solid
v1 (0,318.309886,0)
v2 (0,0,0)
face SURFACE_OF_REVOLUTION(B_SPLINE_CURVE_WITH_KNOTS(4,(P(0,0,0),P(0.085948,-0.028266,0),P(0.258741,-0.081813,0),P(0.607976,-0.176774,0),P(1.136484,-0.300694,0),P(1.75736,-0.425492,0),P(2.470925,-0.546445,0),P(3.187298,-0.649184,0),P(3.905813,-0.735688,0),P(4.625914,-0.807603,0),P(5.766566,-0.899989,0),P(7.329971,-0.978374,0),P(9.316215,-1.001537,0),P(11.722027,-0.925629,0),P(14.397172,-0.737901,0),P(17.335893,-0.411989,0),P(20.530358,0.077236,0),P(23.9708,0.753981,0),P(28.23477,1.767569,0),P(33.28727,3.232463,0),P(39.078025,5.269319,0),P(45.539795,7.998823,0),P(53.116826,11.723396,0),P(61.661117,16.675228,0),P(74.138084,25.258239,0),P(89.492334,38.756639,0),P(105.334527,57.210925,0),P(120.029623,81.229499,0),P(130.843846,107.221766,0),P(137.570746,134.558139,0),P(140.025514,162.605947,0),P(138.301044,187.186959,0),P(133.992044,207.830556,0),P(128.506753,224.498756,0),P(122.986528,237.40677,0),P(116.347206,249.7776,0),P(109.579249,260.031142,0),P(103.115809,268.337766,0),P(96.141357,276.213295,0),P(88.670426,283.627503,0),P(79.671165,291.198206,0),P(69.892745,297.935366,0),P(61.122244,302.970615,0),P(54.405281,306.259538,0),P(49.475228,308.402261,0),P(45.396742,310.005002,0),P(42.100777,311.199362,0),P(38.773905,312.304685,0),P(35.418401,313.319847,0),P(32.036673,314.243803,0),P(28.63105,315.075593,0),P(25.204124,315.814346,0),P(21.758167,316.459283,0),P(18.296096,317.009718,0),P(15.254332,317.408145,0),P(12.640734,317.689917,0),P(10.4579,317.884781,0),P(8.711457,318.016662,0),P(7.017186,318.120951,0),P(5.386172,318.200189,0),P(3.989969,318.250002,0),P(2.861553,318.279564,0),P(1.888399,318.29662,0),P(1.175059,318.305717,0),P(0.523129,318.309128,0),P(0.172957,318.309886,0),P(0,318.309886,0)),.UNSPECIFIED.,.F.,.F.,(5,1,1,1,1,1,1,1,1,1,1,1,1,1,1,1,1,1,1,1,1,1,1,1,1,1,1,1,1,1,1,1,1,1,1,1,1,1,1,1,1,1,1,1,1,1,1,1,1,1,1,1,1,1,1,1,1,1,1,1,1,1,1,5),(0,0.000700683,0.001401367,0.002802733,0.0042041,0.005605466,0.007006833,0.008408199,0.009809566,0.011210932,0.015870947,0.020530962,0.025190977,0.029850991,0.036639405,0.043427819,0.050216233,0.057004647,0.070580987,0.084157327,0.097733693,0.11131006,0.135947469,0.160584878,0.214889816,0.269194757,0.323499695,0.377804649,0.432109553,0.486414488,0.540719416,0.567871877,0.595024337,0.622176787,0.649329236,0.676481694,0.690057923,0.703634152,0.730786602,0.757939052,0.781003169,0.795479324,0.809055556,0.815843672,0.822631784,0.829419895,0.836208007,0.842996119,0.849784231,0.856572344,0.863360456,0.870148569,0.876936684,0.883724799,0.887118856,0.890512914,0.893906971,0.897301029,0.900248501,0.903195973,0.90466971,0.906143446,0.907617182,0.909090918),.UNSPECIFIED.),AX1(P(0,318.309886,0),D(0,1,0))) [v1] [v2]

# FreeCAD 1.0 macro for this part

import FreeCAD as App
import Part
import Sketcher
from FreeCAD import Vector

doc = App.newDocument("Part")
body = doc.addObject("PartDesign::Body", "Body")

# Sketch on XY plane
sketch1 = body.newObject("Sketcher::SketchObject", "Sketch")
sketch1.AttachmentSupport = (doc.getObject("XY_Plane"), [""])
sketch1.MapMode = "FlatFace"
sketch1.addGeometry([
    Part.LineSegment(Vector(0, 318.309886, 0), Vector(0, 0, 0)),
    Part.BSplineCurve([Vector(0, 0, 0), Vector(0.085948, -0.028266, 0), Vector(0.258741, -0.081813, 0), Vector(0.607976, -0.176774, 0), Vector(1.136484, -0.300694, 0), Vector(1.75736, -0.425492, 0), Vector(2.470925, -0.546445, 0), Vector(3.187298, -0.649184, 0), Vector(3.905813, -0.735688, 0), Vector(4.625914, -0.807603, 0), Vector(5.766566, -0.899989, 0), Vector(7.329971, -0.978374, 0), Vector(9.316215, -1.001537, 0), Vector(11.722027, -0.925629, 0), Vector(14.397172, -0.737901, 0), Vector(17.335893, -0.411989, 0), Vector(20.530358, 0.077236, 0), Vector(23.9708, 0.753981, 0), Vector(28.23477, 1.767569, 0), Vector(33.28727, 3.232463, 0), Vector(39.078025, 5.269319, 0), Vector(45.539795, 7.998823, 0), Vector(53.116826, 11.723396, 0), Vector(61.661117, 16.675228, 0), Vector(74.138084, 25.258239, 0), Vector(89.492334, 38.756639, 0), Vector(105.334527, 57.210925, 0), Vector(120.029623, 81.229499, 0), Vector(130.843846, 107.221766, 0), Vector(137.570746, 134.558139, 0), Vector(140.025514, 162.605947, 0), Vector(138.301044, 187.186959, 0), Vector(133.992044, 207.830556, 0), Vector(128.506753, 224.498756, 0), Vector(122.986528, 237.40677, 0), Vector(116.347206, 249.7776, 0), Vector(109.579249, 260.031142, 0), Vector(103.115809, 268.337766, 0), Vector(96.141357, 276.213295, 0), Vector(88.670426, 283.627503, 0), Vector(79.671165, 291.198206, 0), Vector(69.892745, 297.935366, 0), Vector(61.122244, 302.970615, 0), Vector(54.405281, 306.259538, 0), Vector(49.475228, 308.402261, 0), Vector(45.396742, 310.005002, 0), Vector(42.100777, 311.199362, 0), Vector(38.773905, 312.304685, 0), Vector(35.418401, 313.319847, 0), Vector(32.036673, 314.243803, 0), Vector(28.63105, 315.075593, 0), Vector(25.204124, 315.814346, 0), Vector(21.758167, 316.459283, 0), Vector(18.296096, 317.009718, 0), Vector(15.254332, 317.408145, 0), Vector(12.640734, 317.689917, 0), Vector(10.4579, 317.884781, 0), Vector(8.711457, 318.016662, 0), Vector(7.017186, 318.120951, 0), Vector(5.386172, 318.200189, 0), Vector(3.989969, 318.250002, 0), Vector(2.861553, 318.279564, 0), Vector(1.888399, 318.29662, 0), Vector(1.175059, 318.305717, 0), Vector(0.523129, 318.309128, 0), Vector(0.172957, 318.309886, 0), Vector(0, 318.309886, 0)], [5, 1, 1, 1, 1, 1, 1, 1, 1, 1, 1, 1, 1, 1, 1, 1, 1, 1, 1, 1, 1, 1, 1, 1, 1, 1, 1, 1, 1, 1, 1, 1, 1, 1, 1, 1, 1, 1, 1, 1, 1, 1, 1, 1, 1, 1, 1, 1, 1, 1, 1, 1, 1, 1, 1, 1, 1, 1, 1, 1, 1, 1, 1, 5], [0, 0.000700683, 0.001401367, 0.002802733, 0.0042041, 0.005605466, 0.007006833, 0.008408199, 0.009809566, 0.011210932, 0.015870947, 0.020530962, 0.025190977, 0.029850991, 0.036639405, 0.043427819, 0.050216233, 0.057004647, 0.070580987, 0.084157327, 0.097733693, 0.11131006, 0.135947469, 0.160584878, 0.214889816, 0.269194757, 0.323499695, 0.377804649, 0.432109553, 0.486414488, 0.540719416, 0.567871877, 0.595024337, 0.622176787, 0.649329236, 0.676481694, 0.690057923, 0.703634152, 0.730786602, 0.757939052, 0.781003169, 0.795479324, 0.809055556, 0.815843672, 0.822631784, 0.829419895, 0.836208007, 0.842996119, 0.849784231, 0.856572344, 0.863360456, 0.870148569, 0.876936684, 0.883724799, 0.887118856, 0.890512914, 0.893906971, 0.897301029, 0.900248501, 0.903195973, 0.90466971, 0.906143446, 0.907617182, 0.909090918], False, 4, [1, 1, 1, 1, 1, 1, 1, 1, 1, 1, 1, 1, 1, 1, 1, 1, 1, 1, 1, 1, 1, 1, 1, 1, 1, 1, 1, 1, 1, 1, 1, 1, 1, 1, 1, 1, 1, 1, 1, 1, 1, 1, 1, 1, 1, 1, 1, 1, 1, 1, 1, 1, 1, 1, 1, 1, 1, 1, 1, 1, 1, 1, 1, 1, 1, 1, 1], False),
], False)
sketch1.addConstraint([
    Sketcher.Constraint("Block", 1),
    Sketcher.Constraint("Coincident", 0, 1, 1, 2),
    Sketcher.Constraint("Coincident", 1, 1, 0, 2),
])
revolution = body.newObject("PartDesign::Revolution", "Revolution")
revolution.Profile = sketch1
revolution.ReferenceAxis = (sketch1, ["V_Axis"])
revolution.Angle = 360

doc.recompute()
